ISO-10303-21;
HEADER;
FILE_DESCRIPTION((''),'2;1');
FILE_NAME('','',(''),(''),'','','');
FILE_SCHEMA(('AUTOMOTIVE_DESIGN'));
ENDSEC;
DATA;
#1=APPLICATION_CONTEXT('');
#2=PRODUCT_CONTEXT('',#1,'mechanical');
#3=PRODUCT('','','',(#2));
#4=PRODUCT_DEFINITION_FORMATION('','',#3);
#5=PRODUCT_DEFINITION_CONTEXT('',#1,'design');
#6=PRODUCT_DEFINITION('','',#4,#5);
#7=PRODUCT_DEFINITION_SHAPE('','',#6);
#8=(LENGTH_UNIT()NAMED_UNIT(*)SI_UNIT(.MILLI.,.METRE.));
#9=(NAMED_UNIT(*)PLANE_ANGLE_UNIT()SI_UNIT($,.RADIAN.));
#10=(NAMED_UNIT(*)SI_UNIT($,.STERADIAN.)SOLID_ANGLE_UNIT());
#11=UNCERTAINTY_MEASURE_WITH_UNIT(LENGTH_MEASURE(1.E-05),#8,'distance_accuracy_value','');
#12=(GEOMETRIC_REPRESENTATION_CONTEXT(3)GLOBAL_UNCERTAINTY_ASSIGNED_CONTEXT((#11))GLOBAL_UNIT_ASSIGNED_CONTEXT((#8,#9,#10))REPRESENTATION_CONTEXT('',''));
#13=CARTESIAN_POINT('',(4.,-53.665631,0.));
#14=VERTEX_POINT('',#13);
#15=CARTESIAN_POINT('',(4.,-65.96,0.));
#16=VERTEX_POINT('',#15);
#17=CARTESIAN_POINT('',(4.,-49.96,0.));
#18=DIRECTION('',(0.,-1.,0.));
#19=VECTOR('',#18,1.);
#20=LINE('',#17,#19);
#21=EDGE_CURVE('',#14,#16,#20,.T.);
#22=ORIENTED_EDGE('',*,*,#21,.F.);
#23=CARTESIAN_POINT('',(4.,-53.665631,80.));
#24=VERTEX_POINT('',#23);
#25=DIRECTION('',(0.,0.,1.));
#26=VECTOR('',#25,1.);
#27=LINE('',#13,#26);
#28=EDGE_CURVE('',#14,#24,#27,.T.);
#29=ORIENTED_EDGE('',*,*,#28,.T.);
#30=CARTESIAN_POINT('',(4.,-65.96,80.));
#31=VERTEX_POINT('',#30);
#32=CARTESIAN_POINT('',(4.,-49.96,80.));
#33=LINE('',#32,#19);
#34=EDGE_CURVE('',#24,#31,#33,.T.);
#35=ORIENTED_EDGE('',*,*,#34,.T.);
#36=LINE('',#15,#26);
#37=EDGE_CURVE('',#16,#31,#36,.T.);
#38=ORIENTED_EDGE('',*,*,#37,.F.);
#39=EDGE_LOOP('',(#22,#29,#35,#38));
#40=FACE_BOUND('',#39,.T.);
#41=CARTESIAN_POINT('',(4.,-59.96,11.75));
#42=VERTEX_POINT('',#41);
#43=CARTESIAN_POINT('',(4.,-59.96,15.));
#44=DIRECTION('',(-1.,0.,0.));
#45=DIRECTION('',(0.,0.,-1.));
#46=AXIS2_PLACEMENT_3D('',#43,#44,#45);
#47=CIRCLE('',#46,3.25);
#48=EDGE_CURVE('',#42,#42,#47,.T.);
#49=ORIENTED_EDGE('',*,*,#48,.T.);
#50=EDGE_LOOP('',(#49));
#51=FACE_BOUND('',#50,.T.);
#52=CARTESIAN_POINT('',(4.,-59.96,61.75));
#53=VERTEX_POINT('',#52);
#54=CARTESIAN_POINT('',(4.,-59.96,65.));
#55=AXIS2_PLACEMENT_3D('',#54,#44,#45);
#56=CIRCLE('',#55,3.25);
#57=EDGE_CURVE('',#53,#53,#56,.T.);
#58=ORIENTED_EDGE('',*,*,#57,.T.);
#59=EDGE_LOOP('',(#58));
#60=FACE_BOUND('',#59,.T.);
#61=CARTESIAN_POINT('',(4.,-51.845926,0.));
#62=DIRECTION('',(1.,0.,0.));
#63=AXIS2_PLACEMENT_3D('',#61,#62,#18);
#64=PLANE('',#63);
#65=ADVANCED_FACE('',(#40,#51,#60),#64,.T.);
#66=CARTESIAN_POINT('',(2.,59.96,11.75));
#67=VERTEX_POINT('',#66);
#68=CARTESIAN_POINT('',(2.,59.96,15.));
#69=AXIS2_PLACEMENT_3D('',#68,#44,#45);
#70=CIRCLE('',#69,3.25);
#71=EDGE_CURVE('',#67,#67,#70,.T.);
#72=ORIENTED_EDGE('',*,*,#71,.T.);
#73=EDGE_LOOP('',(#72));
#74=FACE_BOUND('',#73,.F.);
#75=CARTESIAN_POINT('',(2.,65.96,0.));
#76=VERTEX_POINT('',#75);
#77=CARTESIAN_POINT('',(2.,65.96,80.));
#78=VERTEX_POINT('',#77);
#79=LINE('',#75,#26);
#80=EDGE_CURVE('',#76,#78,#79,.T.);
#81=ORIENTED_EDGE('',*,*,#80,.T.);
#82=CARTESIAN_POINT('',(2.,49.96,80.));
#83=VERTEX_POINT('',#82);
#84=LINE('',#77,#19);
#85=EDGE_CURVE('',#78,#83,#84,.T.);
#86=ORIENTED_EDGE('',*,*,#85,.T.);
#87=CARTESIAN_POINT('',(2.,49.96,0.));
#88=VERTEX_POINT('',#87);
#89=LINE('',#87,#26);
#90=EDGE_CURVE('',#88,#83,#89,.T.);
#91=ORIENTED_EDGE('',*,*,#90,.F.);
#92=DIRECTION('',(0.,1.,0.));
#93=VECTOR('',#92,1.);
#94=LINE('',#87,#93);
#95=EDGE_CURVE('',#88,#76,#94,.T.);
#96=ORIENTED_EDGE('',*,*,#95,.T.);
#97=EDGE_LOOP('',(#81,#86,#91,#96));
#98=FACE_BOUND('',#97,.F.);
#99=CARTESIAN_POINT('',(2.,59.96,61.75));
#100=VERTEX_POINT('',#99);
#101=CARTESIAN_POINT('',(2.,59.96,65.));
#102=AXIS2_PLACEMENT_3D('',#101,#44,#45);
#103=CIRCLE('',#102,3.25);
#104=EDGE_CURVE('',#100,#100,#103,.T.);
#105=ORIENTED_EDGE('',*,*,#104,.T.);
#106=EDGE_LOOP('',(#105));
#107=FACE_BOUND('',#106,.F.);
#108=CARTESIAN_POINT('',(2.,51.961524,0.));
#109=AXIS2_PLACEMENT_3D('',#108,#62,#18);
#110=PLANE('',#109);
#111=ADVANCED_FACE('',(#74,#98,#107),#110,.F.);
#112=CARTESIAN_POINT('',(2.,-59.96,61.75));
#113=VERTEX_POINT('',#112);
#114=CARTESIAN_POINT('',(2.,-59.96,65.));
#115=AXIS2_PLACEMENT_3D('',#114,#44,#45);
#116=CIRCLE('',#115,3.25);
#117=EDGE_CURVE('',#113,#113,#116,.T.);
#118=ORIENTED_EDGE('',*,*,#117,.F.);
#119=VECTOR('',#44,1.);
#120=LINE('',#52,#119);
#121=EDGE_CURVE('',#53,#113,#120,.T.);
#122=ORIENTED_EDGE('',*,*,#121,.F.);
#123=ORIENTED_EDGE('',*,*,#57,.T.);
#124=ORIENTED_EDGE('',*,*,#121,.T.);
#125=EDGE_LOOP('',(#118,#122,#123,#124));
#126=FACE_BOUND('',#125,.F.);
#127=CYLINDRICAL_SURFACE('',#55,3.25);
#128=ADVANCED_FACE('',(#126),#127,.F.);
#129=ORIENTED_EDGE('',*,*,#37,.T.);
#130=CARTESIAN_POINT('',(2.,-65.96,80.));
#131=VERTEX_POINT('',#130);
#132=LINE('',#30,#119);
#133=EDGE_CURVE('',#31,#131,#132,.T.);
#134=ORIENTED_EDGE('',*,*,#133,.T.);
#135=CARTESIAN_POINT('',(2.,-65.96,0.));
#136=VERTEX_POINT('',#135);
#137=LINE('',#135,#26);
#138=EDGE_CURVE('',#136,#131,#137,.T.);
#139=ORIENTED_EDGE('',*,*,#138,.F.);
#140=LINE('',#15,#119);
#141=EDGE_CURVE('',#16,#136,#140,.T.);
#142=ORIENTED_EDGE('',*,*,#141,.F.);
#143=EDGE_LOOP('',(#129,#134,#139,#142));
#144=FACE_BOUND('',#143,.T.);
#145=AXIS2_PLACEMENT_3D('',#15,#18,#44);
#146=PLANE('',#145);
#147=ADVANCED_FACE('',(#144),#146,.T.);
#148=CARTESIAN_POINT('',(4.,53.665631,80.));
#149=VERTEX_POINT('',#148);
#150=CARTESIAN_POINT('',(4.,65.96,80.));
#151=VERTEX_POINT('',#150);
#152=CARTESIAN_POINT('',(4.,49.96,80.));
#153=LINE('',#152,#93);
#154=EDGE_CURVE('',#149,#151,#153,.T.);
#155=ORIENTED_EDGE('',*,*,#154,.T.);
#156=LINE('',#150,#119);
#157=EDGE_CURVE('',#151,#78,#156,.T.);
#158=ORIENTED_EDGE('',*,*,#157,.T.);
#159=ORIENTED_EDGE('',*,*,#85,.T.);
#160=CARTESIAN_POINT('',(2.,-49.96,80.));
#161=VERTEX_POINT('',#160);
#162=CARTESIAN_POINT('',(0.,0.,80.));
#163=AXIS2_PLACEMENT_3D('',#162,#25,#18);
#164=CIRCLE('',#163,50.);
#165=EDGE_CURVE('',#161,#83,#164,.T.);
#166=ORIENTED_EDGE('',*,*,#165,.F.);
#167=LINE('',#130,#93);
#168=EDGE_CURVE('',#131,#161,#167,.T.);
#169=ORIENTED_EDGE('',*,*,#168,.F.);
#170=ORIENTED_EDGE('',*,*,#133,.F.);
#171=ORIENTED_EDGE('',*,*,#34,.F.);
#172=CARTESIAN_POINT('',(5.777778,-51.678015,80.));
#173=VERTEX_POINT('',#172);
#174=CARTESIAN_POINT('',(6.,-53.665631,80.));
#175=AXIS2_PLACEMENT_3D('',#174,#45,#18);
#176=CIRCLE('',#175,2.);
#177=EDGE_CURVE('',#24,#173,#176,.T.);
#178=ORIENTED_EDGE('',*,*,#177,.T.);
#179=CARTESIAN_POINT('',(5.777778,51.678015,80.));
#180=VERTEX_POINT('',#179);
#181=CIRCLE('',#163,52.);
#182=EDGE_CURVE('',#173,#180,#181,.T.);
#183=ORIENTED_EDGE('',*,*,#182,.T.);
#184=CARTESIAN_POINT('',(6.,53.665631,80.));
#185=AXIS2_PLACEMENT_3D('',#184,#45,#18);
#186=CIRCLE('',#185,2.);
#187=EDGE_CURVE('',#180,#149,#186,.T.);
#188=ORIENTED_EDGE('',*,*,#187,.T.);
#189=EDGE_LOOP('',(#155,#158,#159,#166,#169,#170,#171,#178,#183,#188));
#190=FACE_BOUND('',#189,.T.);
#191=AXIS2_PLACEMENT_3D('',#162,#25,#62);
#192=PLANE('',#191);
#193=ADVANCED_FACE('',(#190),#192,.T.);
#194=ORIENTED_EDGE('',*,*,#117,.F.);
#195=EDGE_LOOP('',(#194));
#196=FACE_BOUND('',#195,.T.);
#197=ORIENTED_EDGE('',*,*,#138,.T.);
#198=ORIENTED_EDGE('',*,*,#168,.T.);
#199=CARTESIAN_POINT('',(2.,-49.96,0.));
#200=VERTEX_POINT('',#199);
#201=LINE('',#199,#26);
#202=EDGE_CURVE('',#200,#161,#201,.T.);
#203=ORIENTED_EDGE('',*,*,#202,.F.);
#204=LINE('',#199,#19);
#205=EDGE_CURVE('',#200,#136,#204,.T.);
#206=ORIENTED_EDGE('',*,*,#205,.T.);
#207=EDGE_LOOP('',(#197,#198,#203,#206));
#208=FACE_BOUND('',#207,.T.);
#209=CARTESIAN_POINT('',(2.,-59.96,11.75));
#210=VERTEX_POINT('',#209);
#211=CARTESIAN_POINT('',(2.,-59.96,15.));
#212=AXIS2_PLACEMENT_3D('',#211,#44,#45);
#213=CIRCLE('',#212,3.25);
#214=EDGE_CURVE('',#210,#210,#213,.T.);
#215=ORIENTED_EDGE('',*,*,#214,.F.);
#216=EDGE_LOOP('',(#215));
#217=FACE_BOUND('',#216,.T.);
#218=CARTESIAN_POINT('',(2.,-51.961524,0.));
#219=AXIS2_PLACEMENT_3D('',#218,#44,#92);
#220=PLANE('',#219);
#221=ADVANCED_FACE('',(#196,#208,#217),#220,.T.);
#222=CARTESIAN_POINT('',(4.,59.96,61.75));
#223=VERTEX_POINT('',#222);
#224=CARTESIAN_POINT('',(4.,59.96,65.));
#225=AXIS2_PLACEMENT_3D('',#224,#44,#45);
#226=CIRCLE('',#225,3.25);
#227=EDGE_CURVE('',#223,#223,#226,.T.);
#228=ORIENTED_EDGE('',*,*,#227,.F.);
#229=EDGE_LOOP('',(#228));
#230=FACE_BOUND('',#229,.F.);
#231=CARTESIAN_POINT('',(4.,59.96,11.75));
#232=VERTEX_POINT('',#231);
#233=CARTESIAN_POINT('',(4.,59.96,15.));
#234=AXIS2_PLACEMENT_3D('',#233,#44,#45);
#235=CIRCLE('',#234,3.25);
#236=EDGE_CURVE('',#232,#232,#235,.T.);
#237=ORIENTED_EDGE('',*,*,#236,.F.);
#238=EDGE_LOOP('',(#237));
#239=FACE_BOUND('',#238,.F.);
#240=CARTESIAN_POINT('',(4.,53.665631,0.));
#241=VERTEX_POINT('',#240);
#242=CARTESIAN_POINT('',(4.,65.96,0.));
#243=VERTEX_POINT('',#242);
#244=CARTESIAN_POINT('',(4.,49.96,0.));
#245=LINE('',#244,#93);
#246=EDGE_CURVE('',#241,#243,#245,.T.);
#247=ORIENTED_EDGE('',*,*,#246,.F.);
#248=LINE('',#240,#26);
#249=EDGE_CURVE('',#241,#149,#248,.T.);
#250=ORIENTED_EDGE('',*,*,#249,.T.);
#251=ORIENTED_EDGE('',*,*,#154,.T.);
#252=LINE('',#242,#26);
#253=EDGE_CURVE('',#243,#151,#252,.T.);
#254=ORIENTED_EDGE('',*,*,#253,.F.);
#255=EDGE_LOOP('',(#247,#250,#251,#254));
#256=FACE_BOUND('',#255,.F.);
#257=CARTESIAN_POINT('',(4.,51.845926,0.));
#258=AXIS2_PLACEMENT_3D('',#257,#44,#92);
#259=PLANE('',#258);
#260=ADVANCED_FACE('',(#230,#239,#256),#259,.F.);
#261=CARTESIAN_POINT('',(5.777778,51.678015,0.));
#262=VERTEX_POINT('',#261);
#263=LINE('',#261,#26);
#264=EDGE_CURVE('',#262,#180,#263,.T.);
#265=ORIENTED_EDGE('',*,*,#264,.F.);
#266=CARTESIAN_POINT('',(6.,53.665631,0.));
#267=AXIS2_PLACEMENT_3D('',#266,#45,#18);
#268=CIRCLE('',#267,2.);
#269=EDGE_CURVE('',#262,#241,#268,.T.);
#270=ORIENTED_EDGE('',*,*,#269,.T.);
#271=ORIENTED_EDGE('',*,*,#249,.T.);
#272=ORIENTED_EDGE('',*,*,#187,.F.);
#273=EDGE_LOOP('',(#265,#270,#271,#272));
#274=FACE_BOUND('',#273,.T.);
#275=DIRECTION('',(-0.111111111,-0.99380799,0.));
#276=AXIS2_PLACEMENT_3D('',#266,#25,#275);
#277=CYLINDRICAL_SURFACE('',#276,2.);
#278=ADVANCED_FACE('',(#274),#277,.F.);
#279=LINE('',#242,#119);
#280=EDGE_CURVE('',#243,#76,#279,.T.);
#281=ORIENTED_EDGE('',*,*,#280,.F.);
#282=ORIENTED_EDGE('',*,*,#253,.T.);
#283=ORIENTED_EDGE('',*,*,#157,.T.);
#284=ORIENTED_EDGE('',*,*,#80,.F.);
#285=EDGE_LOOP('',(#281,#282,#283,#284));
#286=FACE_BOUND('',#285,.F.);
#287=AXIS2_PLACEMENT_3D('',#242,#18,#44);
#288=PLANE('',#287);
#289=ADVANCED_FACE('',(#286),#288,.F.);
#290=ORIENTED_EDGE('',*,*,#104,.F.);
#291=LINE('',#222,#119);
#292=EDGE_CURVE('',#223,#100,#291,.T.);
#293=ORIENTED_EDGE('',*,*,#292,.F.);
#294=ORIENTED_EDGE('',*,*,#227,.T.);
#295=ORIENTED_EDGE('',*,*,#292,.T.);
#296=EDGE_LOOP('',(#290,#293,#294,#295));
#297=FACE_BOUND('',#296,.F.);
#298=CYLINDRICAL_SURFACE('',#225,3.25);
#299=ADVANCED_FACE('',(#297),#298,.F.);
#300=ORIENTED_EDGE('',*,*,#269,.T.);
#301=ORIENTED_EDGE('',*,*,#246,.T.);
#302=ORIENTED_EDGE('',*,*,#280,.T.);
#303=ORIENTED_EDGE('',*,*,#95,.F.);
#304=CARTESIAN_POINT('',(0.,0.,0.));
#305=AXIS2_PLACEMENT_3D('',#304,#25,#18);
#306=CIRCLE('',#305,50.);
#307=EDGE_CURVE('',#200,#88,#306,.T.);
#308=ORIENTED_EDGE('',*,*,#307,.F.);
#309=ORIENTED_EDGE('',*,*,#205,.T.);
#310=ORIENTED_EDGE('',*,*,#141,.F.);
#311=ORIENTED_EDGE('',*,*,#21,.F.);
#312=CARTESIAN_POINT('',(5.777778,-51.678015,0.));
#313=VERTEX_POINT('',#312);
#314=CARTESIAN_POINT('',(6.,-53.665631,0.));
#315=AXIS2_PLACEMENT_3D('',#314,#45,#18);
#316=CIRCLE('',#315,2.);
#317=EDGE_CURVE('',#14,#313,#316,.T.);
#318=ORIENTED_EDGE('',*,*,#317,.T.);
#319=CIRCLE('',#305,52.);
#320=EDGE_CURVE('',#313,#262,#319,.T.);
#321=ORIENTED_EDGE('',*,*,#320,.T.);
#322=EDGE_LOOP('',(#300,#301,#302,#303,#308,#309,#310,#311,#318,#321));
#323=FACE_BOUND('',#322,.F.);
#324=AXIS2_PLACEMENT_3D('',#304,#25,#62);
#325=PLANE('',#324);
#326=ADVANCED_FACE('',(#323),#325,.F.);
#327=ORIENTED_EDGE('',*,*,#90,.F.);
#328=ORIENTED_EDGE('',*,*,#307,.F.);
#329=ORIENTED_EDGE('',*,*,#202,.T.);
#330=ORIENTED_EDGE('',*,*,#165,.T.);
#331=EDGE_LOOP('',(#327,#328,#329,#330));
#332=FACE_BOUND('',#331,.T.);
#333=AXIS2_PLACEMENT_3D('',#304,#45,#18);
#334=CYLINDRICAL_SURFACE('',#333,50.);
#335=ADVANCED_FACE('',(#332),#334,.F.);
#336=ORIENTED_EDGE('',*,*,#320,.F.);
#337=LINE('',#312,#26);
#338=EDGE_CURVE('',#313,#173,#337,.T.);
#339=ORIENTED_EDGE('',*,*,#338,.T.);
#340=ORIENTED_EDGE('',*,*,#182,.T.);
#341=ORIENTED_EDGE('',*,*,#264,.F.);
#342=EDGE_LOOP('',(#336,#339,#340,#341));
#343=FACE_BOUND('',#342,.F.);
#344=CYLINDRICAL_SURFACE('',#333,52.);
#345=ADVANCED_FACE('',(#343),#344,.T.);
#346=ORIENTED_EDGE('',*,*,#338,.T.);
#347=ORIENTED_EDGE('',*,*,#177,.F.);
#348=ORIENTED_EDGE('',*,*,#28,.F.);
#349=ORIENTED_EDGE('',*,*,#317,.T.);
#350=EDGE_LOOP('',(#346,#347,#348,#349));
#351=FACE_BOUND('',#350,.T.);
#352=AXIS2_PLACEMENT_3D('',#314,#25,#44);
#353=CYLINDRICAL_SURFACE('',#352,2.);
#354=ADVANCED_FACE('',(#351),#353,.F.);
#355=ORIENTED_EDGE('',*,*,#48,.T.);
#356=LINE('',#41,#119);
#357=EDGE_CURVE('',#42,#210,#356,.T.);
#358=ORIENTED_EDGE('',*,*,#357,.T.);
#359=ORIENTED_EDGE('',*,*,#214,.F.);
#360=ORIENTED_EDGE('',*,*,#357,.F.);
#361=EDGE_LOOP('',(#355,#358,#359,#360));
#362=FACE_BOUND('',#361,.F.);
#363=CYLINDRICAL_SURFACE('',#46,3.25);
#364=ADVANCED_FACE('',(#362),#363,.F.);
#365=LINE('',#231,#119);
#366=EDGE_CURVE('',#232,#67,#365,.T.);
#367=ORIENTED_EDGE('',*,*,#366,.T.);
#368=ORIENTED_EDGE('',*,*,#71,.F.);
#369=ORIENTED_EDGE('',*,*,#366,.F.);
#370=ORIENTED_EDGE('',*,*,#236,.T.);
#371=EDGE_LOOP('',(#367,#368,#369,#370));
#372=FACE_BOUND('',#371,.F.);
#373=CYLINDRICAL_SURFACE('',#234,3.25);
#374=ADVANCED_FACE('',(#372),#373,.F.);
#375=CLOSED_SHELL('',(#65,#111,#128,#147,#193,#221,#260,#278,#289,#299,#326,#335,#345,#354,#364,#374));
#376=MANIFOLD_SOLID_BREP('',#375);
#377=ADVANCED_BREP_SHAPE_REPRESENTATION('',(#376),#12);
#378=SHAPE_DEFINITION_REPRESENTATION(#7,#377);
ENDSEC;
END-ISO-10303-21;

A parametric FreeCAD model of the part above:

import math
import FreeCAD as App
import Part
import Sketcher


def edges_at(feature, points):
    """Names of the edges that pass closest to the given points."""
    edges = feature.Shape.Edges
    near = lambda p: min(range(len(edges)), key=lambda i: edges[i].distToShape(Part.Vertex(*p))[0])
    return sorted({f"Edge{near(p) + 1}" for p in points})

doc = App.newDocument("Part")
body = doc.addObject("PartDesign::Body", "Body")

# Sketch on XY plane
sketch1 = body.newObject("Sketcher::SketchObject", "Sketch")
sketch1.AttachmentSupport = (doc.getObject("XY_Plane"), [""])
sketch1.MapMode = "FlatFace"
sketch1.addGeometry([
    Part.LineSegment(App.Vector(2, -50, 0), App.Vector(2, -66, 0)),  # 0
    Part.LineSegment(App.Vector(2, -66, 0), App.Vector(4, -66, 0)),  # 1
    Part.LineSegment(App.Vector(4, -66, 0), App.Vector(4, -51.8, 0)),  # 2
    Part.ArcOfCircle(Part.Circle(App.Vector(0, 0, 0), App.Vector(0, 0, 1), 52), math.radians(-86), math.radians(86)),  # 3
    Part.LineSegment(App.Vector(4, 51.8, 0), App.Vector(4, 66, 0)),  # 4
    Part.LineSegment(App.Vector(4, 66, 0), App.Vector(2, 66, 0)),  # 5
    Part.LineSegment(App.Vector(2, 66, 0), App.Vector(2, 50, 0)),  # 6
    Part.ArcOfCircle(Part.Circle(App.Vector(0, 0, 0), App.Vector(0, 0, 1), 50), math.radians(-88), math.radians(88)),  # 7
], False)
sketch1.addConstraint([
    Sketcher.Constraint("Coincident", 0, 2, 1, 1),
    Sketcher.Constraint("Coincident", 1, 2, 2, 1),
    Sketcher.Constraint("Coincident", 2, 2, 3, 1),
    Sketcher.Constraint("Coincident", 3, 2, 4, 1),
    Sketcher.Constraint("Coincident", 4, 2, 5, 1),
    Sketcher.Constraint("Coincident", 5, 2, 6, 1),
    Sketcher.Constraint("Coincident", 6, 2, 7, 2),
    Sketcher.Constraint("Coincident", 7, 1, 0, 1),
    Sketcher.Constraint("Vertical", 0),
    Sketcher.Constraint("Horizontal", 1),
    Sketcher.Constraint("Vertical", 2),
    Sketcher.Constraint("Vertical", 4),
    Sketcher.Constraint("Horizontal", 5),
    Sketcher.Constraint("Vertical", 6),
    Sketcher.Constraint("Coincident", 3, 3, -1, 1),
    Sketcher.Constraint("Coincident", 7, 3, -1, 1),
    Sketcher.Constraint("Symmetric", 1, 2, 4, 2, -1),
    Sketcher.Constraint("Vertical", 0, 2, 5, 2),
    Sketcher.Constraint("Radius", 3, 52.0),
    Sketcher.Constraint("Radius", 7, 50.0),
    Sketcher.Constraint("DistanceX", 1, 1, 1, 2, 2.0),
    Sketcher.Constraint("DistanceY", 0, 2, 0, 1, 16.0),
    Sketcher.Constraint("DistanceX", -1, 1, 0, 2, 2.0),
])
pad1 = body.newObject("PartDesign::Pad", "Pad")
pad1.Profile = sketch1
pad1.Length = 80
doc.recompute()

fillet = body.newObject("PartDesign::Fillet", "Fillet")
fillet.Base = (pad1, edges_at(pad1, [(4, 51.846, 40), (4, -51.846, 40)]))
fillet.Radius = 2

# Sketch on YZ plane
sketch2 = body.newObject("Sketcher::SketchObject", "Sketch001")
sketch2.AttachmentSupport = (doc.getObject("YZ_Plane"), [""])
sketch2.MapMode = "FlatFace"
sketch2.AttachmentOffset = App.Placement(App.Vector(0, 0, 4), App.Rotation())
sketch2.addGeometry([
    Part.Circle(App.Vector(-60, 65, 0), App.Vector(0, 0, 1), 3.2),
    Part.Circle(App.Vector(-60, 15, 0), App.Vector(0, 0, 1), 3.2),
    Part.Circle(App.Vector(60, 15, 0), App.Vector(0, 0, 1), 3.2),
    Part.Circle(App.Vector(60, 65, 0), App.Vector(0, 0, 1), 3.2),
], False)
sketch2.addConstraint([
    Sketcher.Constraint("Equal", 0, 1),
    Sketcher.Constraint("Equal", 1, 2),
    Sketcher.Constraint("Equal", 2, 3),
    Sketcher.Constraint("Symmetric", 1, 3, 2, 3, -2),
    Sketcher.Constraint("Symmetric", 0, 3, 3, 3, -2),
    Sketcher.Constraint("Vertical", 0, 3, 1, 3),
    Sketcher.Constraint("Diameter", 0, 6.5),
    Sketcher.Constraint("DistanceY", -1, 1, 0, 3, 65.0),
    Sketcher.Constraint("DistanceY", -1, 1, 1, 3, 15.0),
    Sketcher.Constraint("DistanceX", 0, 3, -1, 1, 59.96),
])
doc.recompute()
hole = body.newObject("PartDesign::Hole", "Hole")
hole.Profile = sketch2
hole.ThreadType = "None"
hole.Diameter = 6.5
hole.DepthType = "Dimension"
hole.Depth = 2
hole.DrillPoint = "Flat"

doc.recompute()
